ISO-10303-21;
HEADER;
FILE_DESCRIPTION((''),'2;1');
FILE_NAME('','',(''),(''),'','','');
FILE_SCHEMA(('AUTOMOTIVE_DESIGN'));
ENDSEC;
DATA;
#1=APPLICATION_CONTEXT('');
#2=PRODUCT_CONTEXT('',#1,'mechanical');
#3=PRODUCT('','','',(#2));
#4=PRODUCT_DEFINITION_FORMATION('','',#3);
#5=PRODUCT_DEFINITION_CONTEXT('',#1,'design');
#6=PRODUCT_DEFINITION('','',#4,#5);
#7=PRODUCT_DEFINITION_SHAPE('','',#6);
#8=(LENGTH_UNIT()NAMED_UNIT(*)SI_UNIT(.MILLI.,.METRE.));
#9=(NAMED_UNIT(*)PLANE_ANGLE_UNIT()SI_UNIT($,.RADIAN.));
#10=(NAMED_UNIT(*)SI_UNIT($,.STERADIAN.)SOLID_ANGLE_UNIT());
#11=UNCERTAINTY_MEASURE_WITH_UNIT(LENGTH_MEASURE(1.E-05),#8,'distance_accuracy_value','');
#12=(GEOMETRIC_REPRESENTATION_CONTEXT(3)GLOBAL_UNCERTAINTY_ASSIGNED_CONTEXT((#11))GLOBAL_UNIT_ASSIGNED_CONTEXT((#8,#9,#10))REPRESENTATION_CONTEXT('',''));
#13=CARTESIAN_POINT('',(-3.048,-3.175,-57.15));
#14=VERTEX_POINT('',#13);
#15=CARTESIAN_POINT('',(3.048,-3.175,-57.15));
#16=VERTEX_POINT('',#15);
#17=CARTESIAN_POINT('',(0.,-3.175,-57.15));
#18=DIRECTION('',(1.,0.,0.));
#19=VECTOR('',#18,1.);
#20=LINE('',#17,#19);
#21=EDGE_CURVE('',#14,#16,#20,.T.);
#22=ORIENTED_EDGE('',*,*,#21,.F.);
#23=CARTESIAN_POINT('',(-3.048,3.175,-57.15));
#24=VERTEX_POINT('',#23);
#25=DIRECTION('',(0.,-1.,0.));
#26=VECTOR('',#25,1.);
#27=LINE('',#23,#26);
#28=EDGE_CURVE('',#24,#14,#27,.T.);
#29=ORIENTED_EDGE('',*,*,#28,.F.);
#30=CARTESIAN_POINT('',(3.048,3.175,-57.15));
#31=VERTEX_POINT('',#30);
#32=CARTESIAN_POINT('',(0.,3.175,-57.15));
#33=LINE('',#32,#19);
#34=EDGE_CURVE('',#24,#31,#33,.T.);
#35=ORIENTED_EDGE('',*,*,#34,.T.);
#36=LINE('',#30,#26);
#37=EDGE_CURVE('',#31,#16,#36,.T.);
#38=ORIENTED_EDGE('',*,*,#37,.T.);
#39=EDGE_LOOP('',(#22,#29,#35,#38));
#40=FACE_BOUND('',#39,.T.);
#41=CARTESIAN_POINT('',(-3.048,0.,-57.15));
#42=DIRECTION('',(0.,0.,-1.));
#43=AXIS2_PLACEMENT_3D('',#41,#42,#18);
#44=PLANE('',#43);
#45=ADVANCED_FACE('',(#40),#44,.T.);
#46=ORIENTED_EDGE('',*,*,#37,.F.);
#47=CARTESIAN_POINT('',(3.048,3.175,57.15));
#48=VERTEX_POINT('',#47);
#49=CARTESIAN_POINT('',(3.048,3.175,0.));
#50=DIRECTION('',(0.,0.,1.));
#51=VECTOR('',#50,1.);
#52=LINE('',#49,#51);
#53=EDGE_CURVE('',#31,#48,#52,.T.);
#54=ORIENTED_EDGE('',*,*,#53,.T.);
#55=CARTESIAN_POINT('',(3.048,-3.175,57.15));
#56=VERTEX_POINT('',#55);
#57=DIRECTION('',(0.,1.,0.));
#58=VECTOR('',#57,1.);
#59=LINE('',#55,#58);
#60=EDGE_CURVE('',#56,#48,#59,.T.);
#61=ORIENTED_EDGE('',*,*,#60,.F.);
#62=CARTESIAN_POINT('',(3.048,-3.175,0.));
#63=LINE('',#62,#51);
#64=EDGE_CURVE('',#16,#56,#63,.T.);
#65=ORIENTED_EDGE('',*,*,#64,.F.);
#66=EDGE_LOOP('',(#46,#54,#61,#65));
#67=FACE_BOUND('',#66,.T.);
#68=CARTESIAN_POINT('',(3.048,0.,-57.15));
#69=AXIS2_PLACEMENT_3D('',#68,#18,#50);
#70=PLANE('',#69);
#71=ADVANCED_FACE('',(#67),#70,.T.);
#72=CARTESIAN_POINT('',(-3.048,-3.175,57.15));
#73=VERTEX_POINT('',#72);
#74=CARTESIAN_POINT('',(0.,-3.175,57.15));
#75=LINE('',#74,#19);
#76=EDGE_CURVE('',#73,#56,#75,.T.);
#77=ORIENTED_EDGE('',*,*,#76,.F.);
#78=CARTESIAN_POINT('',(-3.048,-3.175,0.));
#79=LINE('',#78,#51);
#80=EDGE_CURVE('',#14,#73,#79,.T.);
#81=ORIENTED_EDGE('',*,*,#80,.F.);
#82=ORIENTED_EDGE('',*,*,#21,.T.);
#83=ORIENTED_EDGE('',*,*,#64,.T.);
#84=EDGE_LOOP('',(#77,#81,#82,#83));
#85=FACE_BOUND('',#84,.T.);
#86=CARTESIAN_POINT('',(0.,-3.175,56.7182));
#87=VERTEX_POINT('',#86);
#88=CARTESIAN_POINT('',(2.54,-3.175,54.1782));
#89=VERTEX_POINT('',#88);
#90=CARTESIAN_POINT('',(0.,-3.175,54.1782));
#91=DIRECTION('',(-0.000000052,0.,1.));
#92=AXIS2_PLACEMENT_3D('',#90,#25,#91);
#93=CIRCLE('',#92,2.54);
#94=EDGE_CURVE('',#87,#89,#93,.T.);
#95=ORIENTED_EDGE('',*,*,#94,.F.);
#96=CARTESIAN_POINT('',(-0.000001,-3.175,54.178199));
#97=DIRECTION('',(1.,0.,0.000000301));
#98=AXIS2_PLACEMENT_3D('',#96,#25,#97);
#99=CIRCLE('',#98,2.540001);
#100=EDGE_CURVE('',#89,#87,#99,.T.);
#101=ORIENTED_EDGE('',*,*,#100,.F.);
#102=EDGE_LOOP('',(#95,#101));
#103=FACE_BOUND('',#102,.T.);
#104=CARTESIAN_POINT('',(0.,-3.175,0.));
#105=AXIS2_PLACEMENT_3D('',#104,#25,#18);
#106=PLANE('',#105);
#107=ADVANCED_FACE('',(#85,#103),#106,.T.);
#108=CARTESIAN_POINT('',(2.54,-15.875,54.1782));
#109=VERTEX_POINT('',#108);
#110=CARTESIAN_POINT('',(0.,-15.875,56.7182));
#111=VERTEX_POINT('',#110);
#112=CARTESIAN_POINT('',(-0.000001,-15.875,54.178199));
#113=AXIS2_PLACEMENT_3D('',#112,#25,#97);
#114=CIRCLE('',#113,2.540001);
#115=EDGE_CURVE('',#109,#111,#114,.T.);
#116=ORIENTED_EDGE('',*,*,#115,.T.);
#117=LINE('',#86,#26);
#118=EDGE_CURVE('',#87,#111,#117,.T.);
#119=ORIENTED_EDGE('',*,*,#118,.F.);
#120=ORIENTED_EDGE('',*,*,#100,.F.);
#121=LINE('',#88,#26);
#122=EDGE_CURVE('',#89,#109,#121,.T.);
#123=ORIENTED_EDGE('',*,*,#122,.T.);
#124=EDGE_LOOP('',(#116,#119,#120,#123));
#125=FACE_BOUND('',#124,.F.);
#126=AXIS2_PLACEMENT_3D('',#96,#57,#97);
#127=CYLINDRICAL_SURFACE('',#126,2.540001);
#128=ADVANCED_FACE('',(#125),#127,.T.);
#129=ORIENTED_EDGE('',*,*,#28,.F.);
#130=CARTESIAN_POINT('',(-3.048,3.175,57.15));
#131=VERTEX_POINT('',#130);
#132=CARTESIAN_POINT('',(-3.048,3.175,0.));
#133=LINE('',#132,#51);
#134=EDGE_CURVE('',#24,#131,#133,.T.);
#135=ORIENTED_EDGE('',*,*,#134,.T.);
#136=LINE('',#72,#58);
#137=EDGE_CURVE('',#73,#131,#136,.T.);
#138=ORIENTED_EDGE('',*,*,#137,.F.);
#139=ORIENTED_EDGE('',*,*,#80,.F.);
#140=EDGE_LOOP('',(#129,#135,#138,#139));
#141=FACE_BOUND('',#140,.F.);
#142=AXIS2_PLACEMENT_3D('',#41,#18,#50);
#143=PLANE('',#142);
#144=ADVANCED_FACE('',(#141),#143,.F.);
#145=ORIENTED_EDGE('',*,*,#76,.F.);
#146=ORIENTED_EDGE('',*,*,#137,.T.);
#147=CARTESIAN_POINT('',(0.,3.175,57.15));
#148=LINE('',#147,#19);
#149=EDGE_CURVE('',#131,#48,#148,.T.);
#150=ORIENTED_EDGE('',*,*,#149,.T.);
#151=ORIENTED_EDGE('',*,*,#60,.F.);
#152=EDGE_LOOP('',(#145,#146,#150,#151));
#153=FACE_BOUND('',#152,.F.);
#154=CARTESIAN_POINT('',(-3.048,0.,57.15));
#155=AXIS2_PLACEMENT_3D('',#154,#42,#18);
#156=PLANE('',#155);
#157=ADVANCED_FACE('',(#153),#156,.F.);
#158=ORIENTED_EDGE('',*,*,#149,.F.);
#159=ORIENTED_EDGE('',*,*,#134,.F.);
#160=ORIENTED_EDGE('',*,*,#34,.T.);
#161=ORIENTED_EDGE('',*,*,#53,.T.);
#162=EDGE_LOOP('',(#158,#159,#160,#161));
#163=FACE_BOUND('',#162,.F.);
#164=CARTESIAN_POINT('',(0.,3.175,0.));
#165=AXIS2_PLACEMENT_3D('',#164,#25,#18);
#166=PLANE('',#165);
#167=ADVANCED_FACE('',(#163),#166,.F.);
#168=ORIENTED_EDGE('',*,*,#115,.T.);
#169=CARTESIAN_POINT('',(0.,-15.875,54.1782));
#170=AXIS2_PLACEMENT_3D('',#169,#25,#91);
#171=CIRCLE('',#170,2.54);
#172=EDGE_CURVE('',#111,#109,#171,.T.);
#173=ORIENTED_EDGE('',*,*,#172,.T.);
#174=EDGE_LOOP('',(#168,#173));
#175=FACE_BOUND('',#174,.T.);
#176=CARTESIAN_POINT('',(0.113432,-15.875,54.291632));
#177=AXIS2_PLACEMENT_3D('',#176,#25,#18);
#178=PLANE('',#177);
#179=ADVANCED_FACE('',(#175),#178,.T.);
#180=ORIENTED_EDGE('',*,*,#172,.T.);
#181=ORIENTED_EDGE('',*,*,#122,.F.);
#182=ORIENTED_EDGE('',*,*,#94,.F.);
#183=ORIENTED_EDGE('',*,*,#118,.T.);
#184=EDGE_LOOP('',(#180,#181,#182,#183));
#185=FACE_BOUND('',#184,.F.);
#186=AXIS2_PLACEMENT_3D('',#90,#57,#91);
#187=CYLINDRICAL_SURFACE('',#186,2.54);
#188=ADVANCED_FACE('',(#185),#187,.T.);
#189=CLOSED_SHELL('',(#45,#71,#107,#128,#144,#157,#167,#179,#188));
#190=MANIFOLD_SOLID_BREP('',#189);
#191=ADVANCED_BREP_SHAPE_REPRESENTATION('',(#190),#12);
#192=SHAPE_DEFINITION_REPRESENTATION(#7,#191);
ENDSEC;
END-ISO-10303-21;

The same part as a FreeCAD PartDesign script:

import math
import FreeCAD as App
import Part
import Sketcher
from FreeCAD import Vector
Q = App.Units.Quantity


def add_polygon(sketch, points):
    """Adds a closed chain of lines whose ends are joined by coincident constraints."""
    first, n = sketch.GeometryCount, len(points)
    for a, b in zip(points, points[1:] + points[:1]):
        sketch.addGeometry(Part.LineSegment(App.Vector(*a, 0), App.Vector(*b, 0)), False)
    for i in range(n):
        sketch.addConstraint(Sketcher.Constraint("Coincident", first + i, 2, first + (i + 1) % n, 1))

doc = App.newDocument("Part")
body = doc.addObject("PartDesign::Body", "Body")

# Sketch on XZ plane
sketch1 = body.newObject("Sketcher::SketchObject", "Sketch")
sketch1.AttachmentSupport = (doc.getObject("XZ_Plane"), [""])
sketch1.MapMode = "FlatFace"
add_polygon(sketch1, [(-3, 57), (-3, -57), (3, -57), (3, 57)])  # lines 0-3
sketch1.addConstraint([
    Sketcher.Constraint("Vertical", 0),
    Sketcher.Constraint("Horizontal", 1),
    Sketcher.Constraint("Vertical", 2),
    Sketcher.Constraint("Horizontal", 3),
    Sketcher.Constraint("Symmetric", 0, 2, 2, 2, -1, 1),
    Sketcher.Constraint("DistanceY", 0, 2, 0, 1, Q("4.5 in")),
    Sketcher.Constraint("DistanceX", 1, 1, 1, 2, Q("0.24 in")),
])
pad1 = body.newObject("PartDesign::Pad", "Pad")
pad1.Profile = sketch1
pad1.Length = Q("0.25 in")
pad1.Midplane = True

# Sketch on XZ plane
sketch2 = body.newObject("Sketcher::SketchObject", "Sketch001")
sketch2.AttachmentSupport = (doc.getObject("XZ_Plane"), [""])
sketch2.MapMode = "FlatFace"
sketch2.AttachmentOffset = App.Placement(Vector(0, 0, 0.125 * 25.4), App.Rotation())
sketch2.addGeometry([
    Part.ArcOfCircle(Part.Circle(Vector(0, 54.2, 0), Vector(0, 0, 1), 2.5), math.radians(90), math.radians(360)),
    Part.ArcOfCircle(Part.Circle(Vector(0, 54.2, 0), Vector(0, 0, 1), 2.5), math.radians(0), math.radians(90)),
], False)
sketch2.addConstraint([
    Sketcher.Constraint("Tangent", 0, 1, 1, 2),
    Sketcher.Constraint("Coincident", 1, 1, 0, 2),
    Sketcher.Constraint("PointOnObject", 0, 3, -2),
    Sketcher.Constraint("PointOnObject", 0, 1, -2),
    Sketcher.Constraint("Horizontal", 0, 3, 1, 1),
    Sketcher.Constraint("Radius", 0, Q("0.1 in")),
    Sketcher.Constraint("DistanceY", -1, 1, 0, 3, Q("2.133 in")),
])
pad2 = body.newObject("PartDesign::Pad", "Pad001")
pad2.Profile = sketch2
pad2.Length = Q("0.5 in")

doc.recompute()
